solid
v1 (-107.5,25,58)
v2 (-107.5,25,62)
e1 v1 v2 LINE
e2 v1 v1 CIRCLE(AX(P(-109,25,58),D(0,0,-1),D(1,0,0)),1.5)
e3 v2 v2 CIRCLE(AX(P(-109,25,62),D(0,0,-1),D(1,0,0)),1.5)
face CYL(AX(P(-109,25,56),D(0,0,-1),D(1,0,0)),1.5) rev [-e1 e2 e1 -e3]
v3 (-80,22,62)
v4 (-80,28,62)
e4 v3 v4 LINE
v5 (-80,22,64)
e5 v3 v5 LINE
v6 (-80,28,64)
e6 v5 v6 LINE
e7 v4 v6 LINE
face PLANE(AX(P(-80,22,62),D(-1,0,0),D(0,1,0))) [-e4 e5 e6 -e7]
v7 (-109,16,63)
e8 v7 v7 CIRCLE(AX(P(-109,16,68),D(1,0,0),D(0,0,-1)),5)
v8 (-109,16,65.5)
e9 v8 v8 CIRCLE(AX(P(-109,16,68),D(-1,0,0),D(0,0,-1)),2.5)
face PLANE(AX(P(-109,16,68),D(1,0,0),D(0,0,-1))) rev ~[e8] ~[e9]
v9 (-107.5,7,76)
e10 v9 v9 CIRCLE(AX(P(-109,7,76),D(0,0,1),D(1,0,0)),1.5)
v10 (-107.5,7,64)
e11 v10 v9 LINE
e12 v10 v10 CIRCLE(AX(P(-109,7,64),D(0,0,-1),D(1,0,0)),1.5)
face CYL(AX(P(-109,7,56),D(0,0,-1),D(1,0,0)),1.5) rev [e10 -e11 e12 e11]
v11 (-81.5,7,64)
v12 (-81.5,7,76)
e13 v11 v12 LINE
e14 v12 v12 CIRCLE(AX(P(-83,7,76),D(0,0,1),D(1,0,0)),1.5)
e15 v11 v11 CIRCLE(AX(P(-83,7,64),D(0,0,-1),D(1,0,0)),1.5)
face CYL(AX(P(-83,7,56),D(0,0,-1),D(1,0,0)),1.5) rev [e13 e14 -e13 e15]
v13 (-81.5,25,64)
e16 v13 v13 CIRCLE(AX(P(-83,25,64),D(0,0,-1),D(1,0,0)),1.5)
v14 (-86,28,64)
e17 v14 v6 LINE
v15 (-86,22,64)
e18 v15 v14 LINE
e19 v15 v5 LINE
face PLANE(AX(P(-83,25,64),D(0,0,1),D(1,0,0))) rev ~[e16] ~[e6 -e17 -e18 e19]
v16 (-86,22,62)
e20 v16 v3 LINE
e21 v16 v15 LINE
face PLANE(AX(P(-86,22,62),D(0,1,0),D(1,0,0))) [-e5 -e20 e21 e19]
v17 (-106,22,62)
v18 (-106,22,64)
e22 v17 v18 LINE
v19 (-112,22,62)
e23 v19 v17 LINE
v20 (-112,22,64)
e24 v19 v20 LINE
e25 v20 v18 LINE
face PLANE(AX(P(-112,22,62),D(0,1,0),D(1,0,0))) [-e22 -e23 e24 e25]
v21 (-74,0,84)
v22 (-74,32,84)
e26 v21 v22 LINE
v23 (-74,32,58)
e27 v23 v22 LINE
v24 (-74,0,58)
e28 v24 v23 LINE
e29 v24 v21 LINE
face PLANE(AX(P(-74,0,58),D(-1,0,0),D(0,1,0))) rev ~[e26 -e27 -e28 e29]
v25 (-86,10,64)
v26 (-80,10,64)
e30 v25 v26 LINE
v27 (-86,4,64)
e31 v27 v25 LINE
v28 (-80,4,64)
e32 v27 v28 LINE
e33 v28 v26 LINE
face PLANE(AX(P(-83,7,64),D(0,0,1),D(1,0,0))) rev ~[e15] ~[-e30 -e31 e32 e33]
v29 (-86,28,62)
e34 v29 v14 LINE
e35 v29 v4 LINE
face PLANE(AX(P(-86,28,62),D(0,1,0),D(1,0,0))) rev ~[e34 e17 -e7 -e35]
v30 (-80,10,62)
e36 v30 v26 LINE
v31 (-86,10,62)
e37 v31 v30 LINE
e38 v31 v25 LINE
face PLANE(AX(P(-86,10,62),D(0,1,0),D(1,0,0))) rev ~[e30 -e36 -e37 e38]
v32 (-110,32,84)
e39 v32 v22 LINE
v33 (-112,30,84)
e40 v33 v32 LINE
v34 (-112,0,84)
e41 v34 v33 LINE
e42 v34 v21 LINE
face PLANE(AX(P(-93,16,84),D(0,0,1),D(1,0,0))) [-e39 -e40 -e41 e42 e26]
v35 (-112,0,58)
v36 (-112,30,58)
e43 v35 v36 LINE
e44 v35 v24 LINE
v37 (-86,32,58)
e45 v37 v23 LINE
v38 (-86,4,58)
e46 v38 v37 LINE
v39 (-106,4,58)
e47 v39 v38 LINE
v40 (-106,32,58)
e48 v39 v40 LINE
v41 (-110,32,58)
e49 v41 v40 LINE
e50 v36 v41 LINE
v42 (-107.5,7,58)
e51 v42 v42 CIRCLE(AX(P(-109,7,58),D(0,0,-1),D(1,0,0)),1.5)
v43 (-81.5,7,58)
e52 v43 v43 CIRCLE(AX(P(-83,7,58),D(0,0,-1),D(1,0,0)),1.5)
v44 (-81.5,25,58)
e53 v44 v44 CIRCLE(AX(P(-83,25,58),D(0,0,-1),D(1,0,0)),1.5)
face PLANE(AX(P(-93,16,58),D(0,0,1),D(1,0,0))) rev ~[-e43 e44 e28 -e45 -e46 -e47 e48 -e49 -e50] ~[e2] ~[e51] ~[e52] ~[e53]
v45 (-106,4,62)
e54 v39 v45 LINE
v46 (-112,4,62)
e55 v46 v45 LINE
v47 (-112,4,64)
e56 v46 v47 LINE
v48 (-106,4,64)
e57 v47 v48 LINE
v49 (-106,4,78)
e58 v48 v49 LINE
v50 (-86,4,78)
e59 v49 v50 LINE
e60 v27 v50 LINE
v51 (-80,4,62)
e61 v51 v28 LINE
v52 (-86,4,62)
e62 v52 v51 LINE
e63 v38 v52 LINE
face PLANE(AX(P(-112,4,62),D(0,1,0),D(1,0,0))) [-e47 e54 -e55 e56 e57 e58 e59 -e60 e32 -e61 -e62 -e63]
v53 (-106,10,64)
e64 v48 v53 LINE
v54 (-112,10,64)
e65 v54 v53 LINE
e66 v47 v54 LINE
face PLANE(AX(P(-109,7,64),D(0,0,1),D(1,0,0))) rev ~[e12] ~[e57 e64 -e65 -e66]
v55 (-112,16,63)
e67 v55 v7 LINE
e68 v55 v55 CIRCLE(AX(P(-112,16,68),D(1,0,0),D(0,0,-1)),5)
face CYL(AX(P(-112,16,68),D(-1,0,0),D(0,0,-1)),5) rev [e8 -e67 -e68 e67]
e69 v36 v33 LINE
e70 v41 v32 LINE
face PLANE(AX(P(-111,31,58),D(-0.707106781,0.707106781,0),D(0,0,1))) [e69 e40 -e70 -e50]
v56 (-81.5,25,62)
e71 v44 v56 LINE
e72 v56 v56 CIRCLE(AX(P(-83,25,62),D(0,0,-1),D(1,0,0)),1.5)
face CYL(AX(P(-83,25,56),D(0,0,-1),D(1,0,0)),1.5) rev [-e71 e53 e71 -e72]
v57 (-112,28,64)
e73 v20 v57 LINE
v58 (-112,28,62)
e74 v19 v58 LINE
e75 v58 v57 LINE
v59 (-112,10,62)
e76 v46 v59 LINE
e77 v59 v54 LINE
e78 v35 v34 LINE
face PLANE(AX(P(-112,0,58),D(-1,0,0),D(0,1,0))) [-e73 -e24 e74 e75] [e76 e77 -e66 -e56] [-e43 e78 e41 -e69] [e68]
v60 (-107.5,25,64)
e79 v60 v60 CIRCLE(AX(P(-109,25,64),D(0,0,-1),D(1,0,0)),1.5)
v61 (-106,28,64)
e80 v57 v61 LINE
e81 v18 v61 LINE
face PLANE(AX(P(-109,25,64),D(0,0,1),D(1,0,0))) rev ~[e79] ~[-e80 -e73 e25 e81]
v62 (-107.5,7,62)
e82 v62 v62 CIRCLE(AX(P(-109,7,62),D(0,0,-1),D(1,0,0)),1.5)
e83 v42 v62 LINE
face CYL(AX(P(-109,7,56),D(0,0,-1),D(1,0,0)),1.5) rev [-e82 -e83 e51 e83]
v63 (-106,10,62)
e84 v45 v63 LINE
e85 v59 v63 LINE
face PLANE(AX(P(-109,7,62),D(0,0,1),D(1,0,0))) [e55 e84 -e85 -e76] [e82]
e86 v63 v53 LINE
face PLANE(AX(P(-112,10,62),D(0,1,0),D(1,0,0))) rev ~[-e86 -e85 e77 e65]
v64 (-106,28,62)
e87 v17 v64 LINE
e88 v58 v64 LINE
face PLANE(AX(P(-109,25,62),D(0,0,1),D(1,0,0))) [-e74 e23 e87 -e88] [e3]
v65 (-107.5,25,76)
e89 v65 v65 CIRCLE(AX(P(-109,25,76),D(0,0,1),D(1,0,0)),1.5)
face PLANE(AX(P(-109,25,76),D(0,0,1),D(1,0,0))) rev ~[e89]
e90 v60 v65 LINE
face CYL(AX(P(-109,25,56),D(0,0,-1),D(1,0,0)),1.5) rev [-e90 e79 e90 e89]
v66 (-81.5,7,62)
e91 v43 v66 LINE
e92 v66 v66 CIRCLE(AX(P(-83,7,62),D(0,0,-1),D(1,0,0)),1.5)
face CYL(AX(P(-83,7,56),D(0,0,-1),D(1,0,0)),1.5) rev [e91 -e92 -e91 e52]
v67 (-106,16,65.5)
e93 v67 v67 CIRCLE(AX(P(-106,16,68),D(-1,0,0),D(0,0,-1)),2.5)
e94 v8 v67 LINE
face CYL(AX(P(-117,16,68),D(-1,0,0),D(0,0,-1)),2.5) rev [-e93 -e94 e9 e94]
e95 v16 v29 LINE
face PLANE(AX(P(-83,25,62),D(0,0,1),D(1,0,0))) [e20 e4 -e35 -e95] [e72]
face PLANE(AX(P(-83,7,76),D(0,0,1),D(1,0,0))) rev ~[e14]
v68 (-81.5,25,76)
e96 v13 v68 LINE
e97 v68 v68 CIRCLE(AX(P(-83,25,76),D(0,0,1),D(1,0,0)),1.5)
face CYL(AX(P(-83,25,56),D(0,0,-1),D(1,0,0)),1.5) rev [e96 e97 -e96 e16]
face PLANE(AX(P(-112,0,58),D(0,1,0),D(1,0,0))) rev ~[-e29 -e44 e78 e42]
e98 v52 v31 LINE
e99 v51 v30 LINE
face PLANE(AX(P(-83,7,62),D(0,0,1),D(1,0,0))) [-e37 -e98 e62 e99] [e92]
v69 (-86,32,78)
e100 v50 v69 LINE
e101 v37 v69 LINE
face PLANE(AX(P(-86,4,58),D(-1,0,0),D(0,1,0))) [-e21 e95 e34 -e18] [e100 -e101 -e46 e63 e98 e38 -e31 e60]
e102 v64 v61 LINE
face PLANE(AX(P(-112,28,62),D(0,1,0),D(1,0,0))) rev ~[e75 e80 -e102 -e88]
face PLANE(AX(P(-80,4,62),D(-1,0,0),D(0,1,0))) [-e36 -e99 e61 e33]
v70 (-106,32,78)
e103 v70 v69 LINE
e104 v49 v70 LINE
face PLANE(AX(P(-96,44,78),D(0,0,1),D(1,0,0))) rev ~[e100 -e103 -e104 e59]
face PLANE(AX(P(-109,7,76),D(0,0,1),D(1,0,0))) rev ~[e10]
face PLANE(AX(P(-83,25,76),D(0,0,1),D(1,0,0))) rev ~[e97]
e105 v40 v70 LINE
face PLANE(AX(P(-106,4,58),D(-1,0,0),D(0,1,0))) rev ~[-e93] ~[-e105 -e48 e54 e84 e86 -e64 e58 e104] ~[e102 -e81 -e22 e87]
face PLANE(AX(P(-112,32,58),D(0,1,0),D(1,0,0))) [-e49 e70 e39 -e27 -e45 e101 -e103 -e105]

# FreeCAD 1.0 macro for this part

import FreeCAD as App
import Part
import Sketcher
from FreeCAD import Vector
Q = App.Units.Quantity


def edges_at(feature, points):
    """Names of the edges that pass closest to the given points."""
    edges = feature.Shape.Edges
    near = lambda p: min(range(len(edges)), key=lambda i: edges[i].distToShape(Part.Vertex(*p))[0])
    return sorted({f"Edge{near(p) + 1}" for p in points})


def add_polygon(sketch, points):
    """Adds a closed chain of lines whose ends are joined by coincident constraints."""
    first, n = sketch.GeometryCount, len(points)
    for a, b in zip(points, points[1:] + points[:1]):
        sketch.addGeometry(Part.LineSegment(App.Vector(*a, 0), App.Vector(*b, 0)), False)
    for i in range(n):
        sketch.addConstraint(Sketcher.Constraint("Coincident", first + i, 2, first + (i + 1) % n, 1))

doc = App.newDocument("Part")
body = doc.addObject("PartDesign::Body", "Body")

# Sketch on YZ plane
sketch1 = body.newObject("Sketcher::SketchObject", "Sketch")
sketch1.AttachmentSupport = (doc.getObject("YZ_Plane"), [""])
sketch1.MapMode = "FlatFace"
sketch1.AttachmentOffset = App.Placement(Vector(0, 0, -112), App.Rotation())
sketch1.addGeometry(Part.Circle(Vector(16, 66, 0), Vector(0, 0, 1), 5), False)
sketch1.addConstraint([
    Sketcher.Constraint("Diameter", 0, Q("10 mm")),
    Sketcher.Constraint("DistanceX", -1, 1, 0, 3, Q("16 mm")),
    Sketcher.Constraint("DistanceY", -1, 1, 0, 3, Q("66 mm")),
])
pad1 = body.newObject("PartDesign::Pad", "Pad")
pad1.Profile = sketch1
pad1.Length = 3
body2 = doc.addObject("PartDesign::Body", "Body001")

# Sketch on YZ plane
sketch2 = body2.newObject("Sketcher::SketchObject", "Sketch001")
sketch2.AttachmentSupport = (doc.getObject("YZ_Plane001"), [""])
sketch2.MapMode = "FlatFace"
sketch2.AttachmentOffset = App.Placement(Vector(0, 0, -117), App.Rotation())
sketch2.addGeometry(Part.Circle(Vector(16, 66, 0), Vector(0, 0, 1), 2.5), False)
sketch2.addConstraint([
    Sketcher.Constraint("Diameter", 0, Q("5 mm")),
    Sketcher.Constraint("DistanceX", -1, 1, 0, 3, Q("16 mm")),
    Sketcher.Constraint("DistanceY", -1, 1, 0, 3, Q("66 mm")),
])
pad2 = body2.newObject("PartDesign::Pad", "Pad001")
pad2.Profile = sketch2
pad2.Length = 20
body3 = doc.addObject("PartDesign::Body", "Body002")

# Sketch on XY plane
sketch3 = body3.newObject("Sketcher::SketchObject", "Sketch002")
sketch3.AttachmentSupport = (doc.getObject("XY_Plane002"), [""])
sketch3.MapMode = "FlatFace"
sketch3.AttachmentOffset = App.Placement(Vector(0, 0, 54), App.Rotation())
sketch3.addGeometry(Part.Circle(Vector(-83, 25, 0), Vector(0, 0, 1), 1.5), False)
sketch3.addConstraint([
    Sketcher.Constraint("Diameter", 0, Q("3 mm")),
    Sketcher.Constraint("DistanceX", 0, 3, -1, 1, Q("83 mm")),
    Sketcher.Constraint("DistanceY", -1, 1, 0, 3, Q("25 mm")),
])
pad3 = body3.newObject("PartDesign::Pad", "Pad002")
pad3.Profile = sketch3
pad3.Length = 20
body4 = doc.addObject("PartDesign::Body", "Body003")

# Sketch on XY plane
sketch4 = body4.newObject("Sketcher::SketchObject", "Sketch003")
sketch4.AttachmentSupport = (doc.getObject("XY_Plane003"), [""])
sketch4.MapMode = "FlatFace"
sketch4.AttachmentOffset = App.Placement(Vector(0, 0, 54), App.Rotation())
sketch4.addGeometry(Part.Circle(Vector(-109, 7, 0), Vector(0, 0, 1), 1.5), False)
sketch4.addConstraint([
    Sketcher.Constraint("Diameter", 0, Q("3 mm")),
    Sketcher.Constraint("DistanceX", 0, 3, -1, 1, Q("109 mm")),
    Sketcher.Constraint("DistanceY", -1, 1, 0, 3, Q("7 mm")),
])
pad4 = body4.newObject("PartDesign::Pad", "Pad003")
pad4.Profile = sketch4
pad4.Length = 20
body5 = doc.addObject("PartDesign::Body", "Body004")

# Sketch on XY plane
sketch5 = body5.newObject("Sketcher::SketchObject", "Sketch004")
sketch5.AttachmentSupport = (doc.getObject("XY_Plane004"), [""])
sketch5.MapMode = "FlatFace"
sketch5.AttachmentOffset = App.Placement(Vector(0, 0, 54), App.Rotation())
sketch5.addGeometry(Part.Circle(Vector(-109, 25, 0), Vector(0, 0, 1), 1.5), False)
sketch5.addConstraint([
    Sketcher.Constraint("Diameter", 0, Q("3 mm")),
    Sketcher.Constraint("DistanceX", 0, 3, -1, 1, Q("109 mm")),
    Sketcher.Constraint("DistanceY", -1, 1, 0, 3, Q("25 mm")),
])
pad5 = body5.newObject("PartDesign::Pad", "Pad004")
pad5.Profile = sketch5
pad5.Length = 20
body6 = doc.addObject("PartDesign::Body", "Body005")
body6.AllowCompound = True

# Sketch on XY plane
sketch6 = body6.newObject("Sketcher::SketchObject", "Sketch005")
sketch6.AttachmentSupport = (doc.getObject("XY_Plane005"), [""])
sketch6.MapMode = "FlatFace"
sketch6.AttachmentOffset = App.Placement(Vector(0, 0, 54), App.Rotation())
sketch6.addGeometry(Part.Circle(Vector(-83, 7, 0), Vector(0, 0, 1), 1.5), False)
sketch6.addConstraint([
    Sketcher.Constraint("Diameter", 0, Q("3 mm")),
    Sketcher.Constraint("DistanceX", 0, 3, -1, 1, Q("83 mm")),
    Sketcher.Constraint("DistanceY", -1, 1, 0, 3, Q("7 mm")),
])
pad6 = body6.newObject("PartDesign::Pad", "Pad005")
pad6.Profile = sketch6
pad6.Length = 20
doc.recompute()

boolean = body6.newObject("PartDesign::Boolean", "Boolean")
boolean.Type = "Fuse"
boolean.addObjects([body3])
doc.recompute()

boolean2 = body6.newObject("PartDesign::Boolean", "Boolean001")
boolean2.Type = "Fuse"
boolean2.addObjects([body4])
doc.recompute()

boolean3 = body6.newObject("PartDesign::Boolean", "Boolean002")
boolean3.Type = "Fuse"
boolean3.addObjects([body5])
body7 = doc.addObject("PartDesign::Body", "Body006")

# Sketch on XY plane
sketch7 = body7.newObject("Sketcher::SketchObject", "Sketch006")
sketch7.AttachmentSupport = (doc.getObject("XY_Plane006"), [""])
sketch7.MapMode = "FlatFace"
sketch7.AttachmentOffset = App.Placement(Vector(0, 0, 60), App.Rotation())
add_polygon(sketch7, [(-112, 28), (-112, 22), (-106, 22), (-106, 28)])  # lines 0-3
sketch7.addConstraint([
    Sketcher.Constraint("Vertical", 0),
    Sketcher.Constraint("Horizontal", 1),
    Sketcher.Constraint("Vertical", 2),
    Sketcher.Constraint("Horizontal", 3),
    Sketcher.Constraint("Equal", 3, 0),
    Sketcher.Constraint("DistanceX", 1, 1, 1, 2, Q("6 mm")),
    Sketcher.Constraint("DistanceX", 0, 2, -1, 1, Q("112 mm")),
    Sketcher.Constraint("DistanceY", -1, 1, 0, 2, Q("22 mm")),
])
pad7 = body7.newObject("PartDesign::Pad", "Pad006")
pad7.Profile = sketch7
pad7.Length = 2
body8 = doc.addObject("PartDesign::Body", "Body007")

# Sketch on XY plane
sketch8 = body8.newObject("Sketcher::SketchObject", "Sketch007")
sketch8.AttachmentSupport = (doc.getObject("XY_Plane007"), [""])
sketch8.MapMode = "FlatFace"
sketch8.AttachmentOffset = App.Placement(Vector(0, 0, 60), App.Rotation())
add_polygon(sketch8, [(-86, 10), (-86, 4), (-80, 4), (-80, 10)])  # lines 0-3
sketch8.addConstraint([
    Sketcher.Constraint("Vertical", 0),
    Sketcher.Constraint("Horizontal", 1),
    Sketcher.Constraint("Vertical", 2),
    Sketcher.Constraint("Horizontal", 3),
    Sketcher.Constraint("Equal", 3, 0),
    Sketcher.Constraint("DistanceX", 1, 1, 1, 2, Q("6 mm")),
    Sketcher.Constraint("DistanceX", 0, 2, -1, 1, Q("86 mm")),
    Sketcher.Constraint("DistanceY", -1, 1, 0, 2, Q("4 mm")),
])
pad8 = body8.newObject("PartDesign::Pad", "Pad007")
pad8.Profile = sketch8
pad8.Length = 2
body9 = doc.addObject("PartDesign::Body", "Body008")

# Sketch on XY plane
sketch9 = body9.newObject("Sketcher::SketchObject", "Sketch008")
sketch9.AttachmentSupport = (doc.getObject("XY_Plane008"), [""])
sketch9.MapMode = "FlatFace"
sketch9.AttachmentOffset = App.Placement(Vector(0, 0, 60), App.Rotation())
add_polygon(sketch9, [(-86, 28), (-86, 22), (-80, 22), (-80, 28)])  # lines 0-3
sketch9.addConstraint([
    Sketcher.Constraint("Vertical", 0),
    Sketcher.Constraint("Horizontal", 1),
    Sketcher.Constraint("Vertical", 2),
    Sketcher.Constraint("Horizontal", 3),
    Sketcher.Constraint("Equal", 3, 0),
    Sketcher.Constraint("DistanceX", 1, 1, 1, 2, Q("6 mm")),
    Sketcher.Constraint("DistanceX", 0, 2, -1, 1, Q("86 mm")),
    Sketcher.Constraint("DistanceY", -1, 1, 0, 2, Q("22 mm")),
])
pad9 = body9.newObject("PartDesign::Pad", "Pad008")
pad9.Profile = sketch9
pad9.Length = 2
body10 = doc.addObject("PartDesign::Body", "Body009")
body10.AllowCompound = True

# Sketch on XY plane
sketch10 = body10.newObject("Sketcher::SketchObject", "Sketch009")
sketch10.AttachmentSupport = (doc.getObject("XY_Plane009"), [""])
sketch10.MapMode = "FlatFace"
sketch10.AttachmentOffset = App.Placement(Vector(0, 0, 60), App.Rotation())
add_polygon(sketch10, [(-112, 10), (-112, 4), (-106, 4), (-106, 10)])  # lines 0-3
sketch10.addConstraint([
    Sketcher.Constraint("Vertical", 0),
    Sketcher.Constraint("Horizontal", 1),
    Sketcher.Constraint("Vertical", 2),
    Sketcher.Constraint("Horizontal", 3),
    Sketcher.Constraint("Equal", 3, 0),
    Sketcher.Constraint("DistanceX", 1, 1, 1, 2, Q("6 mm")),
    Sketcher.Constraint("DistanceX", 0, 2, -1, 1, Q("112 mm")),
    Sketcher.Constraint("DistanceY", -1, 1, 0, 2, Q("4 mm")),
])
pad10 = body10.newObject("PartDesign::Pad", "Pad009")
pad10.Profile = sketch10
pad10.Length = 2
doc.recompute()

boolean4 = body10.newObject("PartDesign::Boolean", "Boolean003")
boolean4.Type = "Fuse"
boolean4.addObjects([body7])
doc.recompute()

boolean5 = body10.newObject("PartDesign::Boolean", "Boolean004")
boolean5.Type = "Fuse"
boolean5.addObjects([body8])
doc.recompute()

boolean6 = body10.newObject("PartDesign::Boolean", "Boolean005")
boolean6.Type = "Fuse"
boolean6.addObjects([body9])
body11 = doc.addObject("PartDesign::Body", "Body010")

# Sketch on XY plane
sketch11 = body11.newObject("Sketcher::SketchObject", "Sketch010")
sketch11.AttachmentSupport = (doc.getObject("XY_Plane010"), [""])
sketch11.MapMode = "FlatFace"
sketch11.AttachmentOffset = App.Placement(Vector(0, 0, 56), App.Rotation())
add_polygon(sketch11, [(-106, 84), (-106, 4), (-86, 4), (-86, 84)])  # lines 0-3
sketch11.addConstraint([
    Sketcher.Constraint("Vertical", 0),
    Sketcher.Constraint("Horizontal", 1),
    Sketcher.Constraint("Vertical", 2),
    Sketcher.Constraint("Horizontal", 3),
    Sketcher.Constraint("DistanceX", 1, 1, 1, 2, Q("20 mm")),
    Sketcher.Constraint("DistanceY", 0, 2, 0, 1, Q("80 mm")),
    Sketcher.Constraint("DistanceX", 0, 2, -1, 1, Q("106 mm")),
    Sketcher.Constraint("DistanceY", -1, 1, 0, 2, Q("4 mm")),
])
pad11 = body11.newObject("PartDesign::Pad", "Pad010")
pad11.Profile = sketch11
pad11.Length = 20
body12 = doc.addObject("PartDesign::Body", "Body011")

# Sketch on XY plane
sketch12 = body12.newObject("Sketcher::SketchObject", "Sketch011")
sketch12.AttachmentSupport = (doc.getObject("XY_Plane011"), [""])
sketch12.MapMode = "FlatFace"
sketch12.AttachmentOffset = App.Placement(Vector(0, 0, 56), App.Rotation())
add_polygon(sketch12, [(-112, 32), (-112, 0), (-74, 0), (-74, 32)])  # lines 0-3
sketch12.addConstraint([
    Sketcher.Constraint("Vertical", 0),
    Sketcher.Constraint("Horizontal", 1),
    Sketcher.Constraint("Vertical", 2),
    Sketcher.Constraint("Horizontal", 3),
    Sketcher.Constraint("PointOnObject", 0, 2, -1),
    Sketcher.Constraint("DistanceX", 1, 1, 1, 2, Q("38 mm")),
    Sketcher.Constraint("DistanceY", 0, 2, 0, 1, Q("32 mm")),
    Sketcher.Constraint("DistanceX", 0, 2, -1, 1, Q("112 mm")),
])
pad12 = body12.newObject("PartDesign::Pad", "Pad011")
pad12.Profile = sketch12
pad12.Length = 26
doc.recompute()

boolean7 = body12.newObject("PartDesign::Boolean", "Boolean006")
boolean7.Type = "Cut"
boolean7.addObjects([body11])
doc.recompute()

boolean8 = body12.newObject("PartDesign::Boolean", "Boolean007")
boolean8.Type = "Cut"
boolean8.addObjects([body10])
doc.recompute()

boolean9 = body12.newObject("PartDesign::Boolean", "Boolean008")
boolean9.Type = "Cut"
boolean9.addObjects([body6])
doc.recompute()

boolean10 = body12.newObject("PartDesign::Boolean", "Boolean009")
boolean10.Type = "Cut"
boolean10.addObjects([body2])
doc.recompute()

boolean11 = body12.newObject("PartDesign::Boolean", "Boolean010")
boolean11.Type = "Cut"
boolean11.addObjects([body])
doc.recompute()

chamfer = body12.newObject("PartDesign::Chamfer", "Chamfer")
chamfer.Base = (boolean11, edges_at(boolean11, [(-112, 32, 69)]))
chamfer.Size = 2
body13 = doc.addObject("PartDesign::Body", "Body012")
doc.recompute()

body12.Placement = App.Placement(Vector(0, 0, 2), App.Rotation(Vector(0, 0, 1), 0))
boolean12 = body13.newObject("PartDesign::Boolean", "Boolean011")
boolean12.Type = "Fuse"
boolean12.addObjects([body12])

doc.recompute()
